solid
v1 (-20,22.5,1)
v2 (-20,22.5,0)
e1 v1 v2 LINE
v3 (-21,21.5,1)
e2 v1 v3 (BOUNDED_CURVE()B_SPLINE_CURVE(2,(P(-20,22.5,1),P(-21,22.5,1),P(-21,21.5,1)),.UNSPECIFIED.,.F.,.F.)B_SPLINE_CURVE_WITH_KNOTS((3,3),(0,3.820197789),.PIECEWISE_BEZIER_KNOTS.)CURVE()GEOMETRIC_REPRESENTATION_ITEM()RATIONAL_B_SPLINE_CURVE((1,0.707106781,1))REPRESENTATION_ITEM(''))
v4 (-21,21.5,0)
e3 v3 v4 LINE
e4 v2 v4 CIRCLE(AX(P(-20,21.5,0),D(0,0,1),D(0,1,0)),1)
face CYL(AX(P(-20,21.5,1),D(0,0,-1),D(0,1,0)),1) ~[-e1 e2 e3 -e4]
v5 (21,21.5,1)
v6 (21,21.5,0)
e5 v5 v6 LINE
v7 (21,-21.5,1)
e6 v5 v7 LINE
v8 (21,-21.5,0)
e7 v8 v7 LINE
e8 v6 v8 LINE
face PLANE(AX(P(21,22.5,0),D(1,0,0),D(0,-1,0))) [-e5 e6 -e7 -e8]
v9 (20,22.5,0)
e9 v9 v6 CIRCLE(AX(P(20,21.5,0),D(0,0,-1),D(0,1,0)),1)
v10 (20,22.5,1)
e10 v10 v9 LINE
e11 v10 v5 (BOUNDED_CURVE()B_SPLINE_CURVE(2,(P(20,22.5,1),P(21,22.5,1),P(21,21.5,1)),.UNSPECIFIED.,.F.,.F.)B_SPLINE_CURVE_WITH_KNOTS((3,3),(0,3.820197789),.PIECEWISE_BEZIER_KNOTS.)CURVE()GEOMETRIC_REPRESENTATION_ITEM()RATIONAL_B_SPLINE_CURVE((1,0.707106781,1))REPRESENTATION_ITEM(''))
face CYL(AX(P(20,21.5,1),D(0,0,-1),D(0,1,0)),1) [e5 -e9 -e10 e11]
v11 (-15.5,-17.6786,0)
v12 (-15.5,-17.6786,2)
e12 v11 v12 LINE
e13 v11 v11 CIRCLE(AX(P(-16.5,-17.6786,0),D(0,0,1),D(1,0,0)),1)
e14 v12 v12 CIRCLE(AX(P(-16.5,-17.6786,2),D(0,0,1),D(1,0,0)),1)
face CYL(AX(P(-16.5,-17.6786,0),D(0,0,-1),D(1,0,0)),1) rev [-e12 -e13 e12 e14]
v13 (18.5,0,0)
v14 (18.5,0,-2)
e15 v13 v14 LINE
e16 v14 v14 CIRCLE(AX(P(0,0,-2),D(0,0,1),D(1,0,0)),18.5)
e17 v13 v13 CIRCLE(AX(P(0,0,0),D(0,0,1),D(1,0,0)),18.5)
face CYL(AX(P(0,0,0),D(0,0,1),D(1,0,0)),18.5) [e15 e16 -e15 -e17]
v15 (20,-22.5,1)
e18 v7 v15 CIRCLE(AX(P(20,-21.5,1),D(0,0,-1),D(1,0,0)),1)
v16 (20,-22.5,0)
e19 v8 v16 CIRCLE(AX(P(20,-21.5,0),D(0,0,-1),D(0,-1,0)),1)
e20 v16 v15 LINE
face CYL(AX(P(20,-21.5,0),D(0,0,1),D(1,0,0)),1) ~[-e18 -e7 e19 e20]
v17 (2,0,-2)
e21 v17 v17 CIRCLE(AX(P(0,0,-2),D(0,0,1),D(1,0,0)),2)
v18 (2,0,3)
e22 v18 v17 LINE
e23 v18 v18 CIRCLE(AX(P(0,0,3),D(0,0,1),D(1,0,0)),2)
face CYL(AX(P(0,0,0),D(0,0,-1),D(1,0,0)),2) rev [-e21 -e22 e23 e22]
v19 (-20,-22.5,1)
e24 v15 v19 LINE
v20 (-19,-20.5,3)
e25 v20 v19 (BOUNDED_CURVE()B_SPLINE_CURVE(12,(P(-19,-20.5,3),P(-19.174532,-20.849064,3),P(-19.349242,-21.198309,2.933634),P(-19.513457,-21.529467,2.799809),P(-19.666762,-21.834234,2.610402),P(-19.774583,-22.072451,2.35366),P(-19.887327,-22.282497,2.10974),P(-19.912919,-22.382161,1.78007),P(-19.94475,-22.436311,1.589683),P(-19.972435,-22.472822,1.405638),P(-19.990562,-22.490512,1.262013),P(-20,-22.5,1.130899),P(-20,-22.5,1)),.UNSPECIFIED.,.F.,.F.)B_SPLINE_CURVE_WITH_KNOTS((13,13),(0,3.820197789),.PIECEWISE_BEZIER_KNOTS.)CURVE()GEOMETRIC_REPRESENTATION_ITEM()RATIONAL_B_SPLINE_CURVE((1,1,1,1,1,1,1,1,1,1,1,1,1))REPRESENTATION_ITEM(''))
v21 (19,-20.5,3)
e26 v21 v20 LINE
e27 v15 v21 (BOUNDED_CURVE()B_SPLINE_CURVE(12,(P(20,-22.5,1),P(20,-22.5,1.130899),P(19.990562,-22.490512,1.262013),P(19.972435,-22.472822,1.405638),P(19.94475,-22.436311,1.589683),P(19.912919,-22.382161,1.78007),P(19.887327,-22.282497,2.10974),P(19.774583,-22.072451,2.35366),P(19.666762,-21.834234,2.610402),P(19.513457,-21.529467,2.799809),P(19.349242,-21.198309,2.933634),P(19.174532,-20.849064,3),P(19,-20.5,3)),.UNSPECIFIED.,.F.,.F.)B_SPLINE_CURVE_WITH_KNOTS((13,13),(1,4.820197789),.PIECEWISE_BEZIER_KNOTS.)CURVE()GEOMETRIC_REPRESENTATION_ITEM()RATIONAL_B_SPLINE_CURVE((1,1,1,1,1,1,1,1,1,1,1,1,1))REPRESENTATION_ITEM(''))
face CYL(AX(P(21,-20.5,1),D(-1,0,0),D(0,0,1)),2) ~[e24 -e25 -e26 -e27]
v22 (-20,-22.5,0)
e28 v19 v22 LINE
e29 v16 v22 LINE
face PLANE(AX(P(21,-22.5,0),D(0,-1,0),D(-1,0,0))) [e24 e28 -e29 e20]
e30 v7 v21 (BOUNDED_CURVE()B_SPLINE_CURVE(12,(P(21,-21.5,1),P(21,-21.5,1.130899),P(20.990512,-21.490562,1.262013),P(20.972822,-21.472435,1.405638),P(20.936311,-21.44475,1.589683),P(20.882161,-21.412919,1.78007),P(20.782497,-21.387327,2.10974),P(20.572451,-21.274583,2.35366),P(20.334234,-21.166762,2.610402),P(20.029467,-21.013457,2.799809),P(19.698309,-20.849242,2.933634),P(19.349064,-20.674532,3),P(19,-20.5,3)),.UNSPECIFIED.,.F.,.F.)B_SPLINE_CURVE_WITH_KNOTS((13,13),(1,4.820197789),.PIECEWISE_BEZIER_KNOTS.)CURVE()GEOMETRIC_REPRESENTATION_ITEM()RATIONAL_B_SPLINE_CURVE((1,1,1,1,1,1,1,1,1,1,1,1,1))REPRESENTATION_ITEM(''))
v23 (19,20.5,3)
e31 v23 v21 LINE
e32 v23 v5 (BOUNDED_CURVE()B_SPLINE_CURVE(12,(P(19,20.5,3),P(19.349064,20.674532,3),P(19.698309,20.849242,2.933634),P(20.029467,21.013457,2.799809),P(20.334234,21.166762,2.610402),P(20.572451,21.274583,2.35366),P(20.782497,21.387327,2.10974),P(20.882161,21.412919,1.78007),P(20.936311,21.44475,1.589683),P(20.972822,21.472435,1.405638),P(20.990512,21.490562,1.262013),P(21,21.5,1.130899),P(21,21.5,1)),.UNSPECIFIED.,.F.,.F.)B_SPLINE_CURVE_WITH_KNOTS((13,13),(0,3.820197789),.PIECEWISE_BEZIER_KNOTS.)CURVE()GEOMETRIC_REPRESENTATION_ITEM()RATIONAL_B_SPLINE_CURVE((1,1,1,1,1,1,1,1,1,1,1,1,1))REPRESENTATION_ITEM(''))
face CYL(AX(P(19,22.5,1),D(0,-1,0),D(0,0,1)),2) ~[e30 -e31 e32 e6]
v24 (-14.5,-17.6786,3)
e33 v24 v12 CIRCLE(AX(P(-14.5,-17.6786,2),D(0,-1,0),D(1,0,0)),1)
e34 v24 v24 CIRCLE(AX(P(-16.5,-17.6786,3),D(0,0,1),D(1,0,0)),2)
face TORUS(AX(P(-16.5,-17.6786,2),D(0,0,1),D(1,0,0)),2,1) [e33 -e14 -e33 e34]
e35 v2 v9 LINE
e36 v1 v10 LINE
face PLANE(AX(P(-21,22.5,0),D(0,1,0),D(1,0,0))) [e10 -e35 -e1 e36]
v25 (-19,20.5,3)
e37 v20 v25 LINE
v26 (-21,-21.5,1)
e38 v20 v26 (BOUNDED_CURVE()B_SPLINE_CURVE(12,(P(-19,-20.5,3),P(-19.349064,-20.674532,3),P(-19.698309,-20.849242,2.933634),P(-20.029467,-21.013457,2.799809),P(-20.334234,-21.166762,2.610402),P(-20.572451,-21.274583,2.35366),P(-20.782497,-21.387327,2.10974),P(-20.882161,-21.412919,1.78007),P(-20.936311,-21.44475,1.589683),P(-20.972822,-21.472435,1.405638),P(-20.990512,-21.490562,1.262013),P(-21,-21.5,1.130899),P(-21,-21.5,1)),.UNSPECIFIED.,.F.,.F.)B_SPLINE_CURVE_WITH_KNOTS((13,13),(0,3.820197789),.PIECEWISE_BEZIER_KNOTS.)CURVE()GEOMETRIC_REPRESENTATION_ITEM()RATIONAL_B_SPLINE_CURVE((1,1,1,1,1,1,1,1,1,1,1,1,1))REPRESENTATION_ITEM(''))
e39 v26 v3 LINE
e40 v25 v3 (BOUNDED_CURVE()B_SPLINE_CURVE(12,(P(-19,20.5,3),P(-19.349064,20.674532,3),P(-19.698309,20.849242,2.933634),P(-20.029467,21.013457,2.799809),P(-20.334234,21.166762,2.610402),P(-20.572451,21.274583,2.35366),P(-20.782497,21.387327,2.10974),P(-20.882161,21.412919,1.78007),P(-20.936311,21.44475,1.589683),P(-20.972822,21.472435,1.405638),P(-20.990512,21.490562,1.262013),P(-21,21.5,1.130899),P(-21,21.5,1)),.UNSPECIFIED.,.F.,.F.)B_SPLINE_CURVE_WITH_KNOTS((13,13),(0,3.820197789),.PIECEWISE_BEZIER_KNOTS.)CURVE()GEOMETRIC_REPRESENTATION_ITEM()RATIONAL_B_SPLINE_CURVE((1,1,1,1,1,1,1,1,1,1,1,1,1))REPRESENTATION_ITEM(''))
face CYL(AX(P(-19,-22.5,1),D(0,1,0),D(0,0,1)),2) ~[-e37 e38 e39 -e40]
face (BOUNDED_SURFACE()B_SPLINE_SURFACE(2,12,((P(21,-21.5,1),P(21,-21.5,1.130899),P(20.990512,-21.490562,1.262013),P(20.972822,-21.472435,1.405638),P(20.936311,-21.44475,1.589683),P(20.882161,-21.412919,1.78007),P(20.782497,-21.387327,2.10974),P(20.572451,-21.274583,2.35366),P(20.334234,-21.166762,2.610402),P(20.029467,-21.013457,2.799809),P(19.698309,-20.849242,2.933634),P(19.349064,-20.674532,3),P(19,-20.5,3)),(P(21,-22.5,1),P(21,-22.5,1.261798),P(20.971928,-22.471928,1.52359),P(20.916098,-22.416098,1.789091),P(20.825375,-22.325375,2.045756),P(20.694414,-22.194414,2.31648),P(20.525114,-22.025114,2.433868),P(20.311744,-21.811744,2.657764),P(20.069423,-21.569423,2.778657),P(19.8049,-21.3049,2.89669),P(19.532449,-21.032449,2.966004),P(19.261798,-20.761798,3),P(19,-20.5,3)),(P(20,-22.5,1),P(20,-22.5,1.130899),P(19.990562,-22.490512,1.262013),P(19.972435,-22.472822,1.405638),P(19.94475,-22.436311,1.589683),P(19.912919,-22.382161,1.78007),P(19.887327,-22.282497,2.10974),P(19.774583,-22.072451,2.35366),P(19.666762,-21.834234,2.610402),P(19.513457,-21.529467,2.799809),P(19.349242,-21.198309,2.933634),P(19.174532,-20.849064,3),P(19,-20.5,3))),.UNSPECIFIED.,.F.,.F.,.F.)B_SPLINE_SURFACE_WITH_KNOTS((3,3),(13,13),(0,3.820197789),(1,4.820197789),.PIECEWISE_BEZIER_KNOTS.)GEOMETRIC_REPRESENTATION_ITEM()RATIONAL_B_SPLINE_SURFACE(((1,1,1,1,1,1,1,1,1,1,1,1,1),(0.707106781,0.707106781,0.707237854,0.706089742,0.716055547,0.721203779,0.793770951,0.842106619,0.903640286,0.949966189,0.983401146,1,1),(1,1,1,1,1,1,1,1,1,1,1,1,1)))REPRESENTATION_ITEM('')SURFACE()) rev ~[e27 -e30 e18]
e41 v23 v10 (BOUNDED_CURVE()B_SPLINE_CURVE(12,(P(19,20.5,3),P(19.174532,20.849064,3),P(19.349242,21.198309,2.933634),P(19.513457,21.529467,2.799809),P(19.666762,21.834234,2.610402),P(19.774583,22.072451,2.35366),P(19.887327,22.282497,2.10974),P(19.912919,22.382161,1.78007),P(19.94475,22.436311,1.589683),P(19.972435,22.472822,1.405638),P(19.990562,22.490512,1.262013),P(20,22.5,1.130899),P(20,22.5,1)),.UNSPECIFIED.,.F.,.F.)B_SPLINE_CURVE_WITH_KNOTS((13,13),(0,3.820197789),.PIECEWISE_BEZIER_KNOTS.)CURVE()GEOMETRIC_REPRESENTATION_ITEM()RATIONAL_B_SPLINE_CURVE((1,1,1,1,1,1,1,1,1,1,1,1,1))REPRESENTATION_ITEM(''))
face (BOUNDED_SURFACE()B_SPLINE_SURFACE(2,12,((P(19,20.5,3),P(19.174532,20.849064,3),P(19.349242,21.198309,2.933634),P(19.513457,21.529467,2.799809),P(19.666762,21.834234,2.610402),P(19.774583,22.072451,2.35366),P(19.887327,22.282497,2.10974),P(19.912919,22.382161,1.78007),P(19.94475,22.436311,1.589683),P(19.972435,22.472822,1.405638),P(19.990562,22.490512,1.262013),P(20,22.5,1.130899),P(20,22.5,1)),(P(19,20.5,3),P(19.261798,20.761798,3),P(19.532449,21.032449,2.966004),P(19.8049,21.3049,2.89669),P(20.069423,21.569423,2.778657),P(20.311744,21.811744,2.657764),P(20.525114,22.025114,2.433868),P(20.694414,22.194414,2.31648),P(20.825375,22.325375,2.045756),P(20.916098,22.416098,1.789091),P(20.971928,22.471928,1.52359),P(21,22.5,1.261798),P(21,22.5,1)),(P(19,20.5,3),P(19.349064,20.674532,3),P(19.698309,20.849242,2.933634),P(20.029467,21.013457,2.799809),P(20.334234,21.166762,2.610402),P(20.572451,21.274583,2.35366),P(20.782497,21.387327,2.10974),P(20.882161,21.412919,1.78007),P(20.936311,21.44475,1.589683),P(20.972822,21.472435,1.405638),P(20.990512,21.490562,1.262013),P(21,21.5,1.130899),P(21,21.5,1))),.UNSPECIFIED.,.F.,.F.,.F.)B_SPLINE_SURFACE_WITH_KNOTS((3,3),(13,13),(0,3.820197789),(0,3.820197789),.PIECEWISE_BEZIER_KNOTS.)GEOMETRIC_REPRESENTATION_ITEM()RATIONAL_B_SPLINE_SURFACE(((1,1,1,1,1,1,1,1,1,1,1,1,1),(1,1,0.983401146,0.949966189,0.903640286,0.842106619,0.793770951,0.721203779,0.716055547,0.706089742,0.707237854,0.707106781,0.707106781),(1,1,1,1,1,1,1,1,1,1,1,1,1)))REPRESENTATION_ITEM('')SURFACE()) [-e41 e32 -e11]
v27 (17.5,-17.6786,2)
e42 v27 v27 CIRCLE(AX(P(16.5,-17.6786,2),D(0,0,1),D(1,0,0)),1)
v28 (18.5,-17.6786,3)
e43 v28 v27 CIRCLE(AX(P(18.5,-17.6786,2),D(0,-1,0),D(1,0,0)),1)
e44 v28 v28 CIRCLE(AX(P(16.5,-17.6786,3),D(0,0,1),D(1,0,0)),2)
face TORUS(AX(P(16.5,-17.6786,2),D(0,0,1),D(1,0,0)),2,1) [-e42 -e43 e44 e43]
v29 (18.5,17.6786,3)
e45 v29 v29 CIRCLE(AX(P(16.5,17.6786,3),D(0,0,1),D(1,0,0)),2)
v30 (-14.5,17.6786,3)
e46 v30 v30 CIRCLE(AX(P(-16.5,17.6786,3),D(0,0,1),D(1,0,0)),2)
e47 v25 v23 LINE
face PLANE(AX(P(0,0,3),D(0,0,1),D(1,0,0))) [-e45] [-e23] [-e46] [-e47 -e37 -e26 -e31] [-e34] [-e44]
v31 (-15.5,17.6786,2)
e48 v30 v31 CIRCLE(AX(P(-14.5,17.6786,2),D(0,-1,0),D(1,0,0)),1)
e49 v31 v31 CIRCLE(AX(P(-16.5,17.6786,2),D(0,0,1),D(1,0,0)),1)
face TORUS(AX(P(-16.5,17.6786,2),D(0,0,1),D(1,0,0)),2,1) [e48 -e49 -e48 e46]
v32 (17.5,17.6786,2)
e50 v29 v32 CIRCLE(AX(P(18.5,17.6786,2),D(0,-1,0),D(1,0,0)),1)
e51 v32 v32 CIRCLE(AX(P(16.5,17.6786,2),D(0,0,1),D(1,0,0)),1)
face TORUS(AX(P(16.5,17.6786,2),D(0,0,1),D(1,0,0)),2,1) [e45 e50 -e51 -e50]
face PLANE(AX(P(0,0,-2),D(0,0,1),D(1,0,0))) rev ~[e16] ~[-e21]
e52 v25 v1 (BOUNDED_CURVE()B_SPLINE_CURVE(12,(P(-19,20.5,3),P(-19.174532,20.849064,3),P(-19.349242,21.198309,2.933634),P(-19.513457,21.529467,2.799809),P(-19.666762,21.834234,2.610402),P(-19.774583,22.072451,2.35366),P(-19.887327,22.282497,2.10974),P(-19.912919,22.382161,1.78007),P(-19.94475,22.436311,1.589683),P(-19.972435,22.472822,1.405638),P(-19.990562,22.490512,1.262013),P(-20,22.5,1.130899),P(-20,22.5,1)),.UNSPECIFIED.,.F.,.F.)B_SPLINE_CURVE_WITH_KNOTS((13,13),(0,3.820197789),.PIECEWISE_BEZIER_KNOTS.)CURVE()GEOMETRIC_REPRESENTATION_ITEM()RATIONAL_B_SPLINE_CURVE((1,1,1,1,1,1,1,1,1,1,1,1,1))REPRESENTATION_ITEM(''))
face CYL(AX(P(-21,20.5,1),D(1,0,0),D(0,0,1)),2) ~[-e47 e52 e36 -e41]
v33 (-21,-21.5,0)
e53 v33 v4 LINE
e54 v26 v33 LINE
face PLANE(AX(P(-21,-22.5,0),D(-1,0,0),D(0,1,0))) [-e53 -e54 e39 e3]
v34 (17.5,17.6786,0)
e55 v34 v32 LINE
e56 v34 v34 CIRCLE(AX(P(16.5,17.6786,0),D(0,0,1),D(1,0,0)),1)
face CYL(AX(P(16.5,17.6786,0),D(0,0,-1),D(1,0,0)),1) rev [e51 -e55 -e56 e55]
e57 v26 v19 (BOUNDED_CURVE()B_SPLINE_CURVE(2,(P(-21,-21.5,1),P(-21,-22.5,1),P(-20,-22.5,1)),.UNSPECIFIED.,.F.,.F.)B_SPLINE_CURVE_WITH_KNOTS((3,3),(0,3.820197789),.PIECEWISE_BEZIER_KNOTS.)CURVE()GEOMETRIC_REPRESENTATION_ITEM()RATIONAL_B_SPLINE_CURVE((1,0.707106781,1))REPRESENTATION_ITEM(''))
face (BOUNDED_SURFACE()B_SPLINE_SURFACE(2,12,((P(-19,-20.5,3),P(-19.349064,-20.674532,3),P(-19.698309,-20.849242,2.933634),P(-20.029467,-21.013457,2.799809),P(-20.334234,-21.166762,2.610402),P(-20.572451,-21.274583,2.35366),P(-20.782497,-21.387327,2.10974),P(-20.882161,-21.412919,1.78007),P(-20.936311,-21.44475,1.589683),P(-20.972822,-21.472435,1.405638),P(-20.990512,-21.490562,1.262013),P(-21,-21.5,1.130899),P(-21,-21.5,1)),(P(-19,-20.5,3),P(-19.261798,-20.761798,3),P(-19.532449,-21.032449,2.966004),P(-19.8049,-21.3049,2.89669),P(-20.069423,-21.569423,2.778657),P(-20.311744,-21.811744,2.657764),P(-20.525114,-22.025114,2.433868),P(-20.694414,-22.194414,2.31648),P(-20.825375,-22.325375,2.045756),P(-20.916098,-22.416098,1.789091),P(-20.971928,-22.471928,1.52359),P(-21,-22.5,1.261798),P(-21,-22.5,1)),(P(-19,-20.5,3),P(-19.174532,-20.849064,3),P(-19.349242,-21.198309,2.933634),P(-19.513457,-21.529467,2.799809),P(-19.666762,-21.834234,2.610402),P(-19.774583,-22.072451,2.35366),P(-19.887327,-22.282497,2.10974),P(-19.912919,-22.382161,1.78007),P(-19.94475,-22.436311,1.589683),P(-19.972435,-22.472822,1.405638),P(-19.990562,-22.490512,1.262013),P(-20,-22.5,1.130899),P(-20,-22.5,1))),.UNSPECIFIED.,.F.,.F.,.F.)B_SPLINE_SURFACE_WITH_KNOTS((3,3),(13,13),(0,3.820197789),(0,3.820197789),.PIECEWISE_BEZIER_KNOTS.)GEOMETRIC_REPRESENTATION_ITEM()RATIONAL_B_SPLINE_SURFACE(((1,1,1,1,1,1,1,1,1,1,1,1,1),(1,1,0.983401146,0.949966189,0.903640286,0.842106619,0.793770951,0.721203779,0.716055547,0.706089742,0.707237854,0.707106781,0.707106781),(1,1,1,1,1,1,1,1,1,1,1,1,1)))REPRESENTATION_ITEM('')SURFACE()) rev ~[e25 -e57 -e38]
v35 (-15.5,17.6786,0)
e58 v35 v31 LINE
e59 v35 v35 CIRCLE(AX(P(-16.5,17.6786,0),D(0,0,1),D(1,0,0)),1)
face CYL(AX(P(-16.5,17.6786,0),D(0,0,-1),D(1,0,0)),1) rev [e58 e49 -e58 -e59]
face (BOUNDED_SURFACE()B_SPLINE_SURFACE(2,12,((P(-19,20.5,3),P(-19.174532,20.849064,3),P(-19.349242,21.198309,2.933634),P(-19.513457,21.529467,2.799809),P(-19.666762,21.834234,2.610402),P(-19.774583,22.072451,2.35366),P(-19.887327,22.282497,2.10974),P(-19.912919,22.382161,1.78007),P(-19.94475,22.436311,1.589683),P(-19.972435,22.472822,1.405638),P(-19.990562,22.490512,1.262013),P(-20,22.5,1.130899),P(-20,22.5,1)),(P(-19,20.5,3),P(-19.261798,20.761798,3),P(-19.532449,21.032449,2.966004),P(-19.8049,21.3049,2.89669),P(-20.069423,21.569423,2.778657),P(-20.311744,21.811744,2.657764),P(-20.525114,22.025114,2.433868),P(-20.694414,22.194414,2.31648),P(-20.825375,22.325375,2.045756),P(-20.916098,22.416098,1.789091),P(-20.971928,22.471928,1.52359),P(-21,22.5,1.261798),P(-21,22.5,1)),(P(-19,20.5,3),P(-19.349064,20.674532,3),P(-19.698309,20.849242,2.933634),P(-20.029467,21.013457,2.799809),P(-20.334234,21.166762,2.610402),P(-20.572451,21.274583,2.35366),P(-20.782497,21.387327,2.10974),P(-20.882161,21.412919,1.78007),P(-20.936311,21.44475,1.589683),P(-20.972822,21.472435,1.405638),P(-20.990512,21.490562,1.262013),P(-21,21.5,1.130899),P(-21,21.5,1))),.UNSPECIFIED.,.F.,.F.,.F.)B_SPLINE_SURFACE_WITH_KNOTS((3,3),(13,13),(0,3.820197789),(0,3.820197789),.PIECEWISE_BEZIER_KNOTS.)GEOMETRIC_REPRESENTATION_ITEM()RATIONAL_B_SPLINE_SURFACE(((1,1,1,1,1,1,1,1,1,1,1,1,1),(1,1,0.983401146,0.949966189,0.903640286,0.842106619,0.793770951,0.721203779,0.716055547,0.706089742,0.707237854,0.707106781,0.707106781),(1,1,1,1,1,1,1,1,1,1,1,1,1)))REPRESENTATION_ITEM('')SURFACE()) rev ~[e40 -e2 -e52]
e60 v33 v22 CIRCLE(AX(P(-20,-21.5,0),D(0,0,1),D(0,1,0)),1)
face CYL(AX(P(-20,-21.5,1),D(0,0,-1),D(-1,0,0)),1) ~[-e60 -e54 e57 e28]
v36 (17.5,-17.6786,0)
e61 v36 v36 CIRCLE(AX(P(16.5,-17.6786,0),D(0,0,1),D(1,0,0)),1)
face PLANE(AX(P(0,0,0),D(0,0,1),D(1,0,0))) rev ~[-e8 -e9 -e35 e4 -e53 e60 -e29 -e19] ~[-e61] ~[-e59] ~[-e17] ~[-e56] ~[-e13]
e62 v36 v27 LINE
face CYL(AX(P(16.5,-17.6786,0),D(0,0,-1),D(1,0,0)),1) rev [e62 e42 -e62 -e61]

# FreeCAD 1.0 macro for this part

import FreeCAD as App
import Part
import Sketcher

V = App.Vector
Q = App.Units.Quantity


def edges_at(feature, points):
    """Names of the edges that pass closest to the given points."""
    edges = feature.Shape.Edges
    near = lambda p: min(range(len(edges)), key=lambda i: edges[i].distToShape(Part.Vertex(*p))[0])
    return sorted({f"Edge{near(p) + 1}" for p in points})


def add_polygon(sketch, points):
    """Adds a closed chain of lines whose ends are joined by coincident constraints."""
    first, n = sketch.GeometryCount, len(points)
    for a, b in zip(points, points[1:] + points[:1]):
        sketch.addGeometry(Part.LineSegment(App.Vector(*a, 0), App.Vector(*b, 0)), False)
    for i in range(n):
        sketch.addConstraint(Sketcher.Constraint("Coincident", first + i, 2, first + (i + 1) % n, 1))

doc = App.newDocument("Part")
body = doc.addObject("PartDesign::Body", "Body")

sketch1 = body.newObject("Sketcher::SketchObject", "Sketch")
sketch1.AttachmentSupport = (doc.getObject("XY_Plane"), [""])
sketch1.MapMode = "FlatFace"
add_polygon(sketch1, [(21, 22.5), (-21, 22.5), (-21, -22.5), (21, -22.5)])
sketch1.addGeometry(Part.Circle(V(-16.5, -17.7, 0), V(0, 0, 1), 1), False)
sketch1.addGeometry(Part.Circle(V(16.5, -17.7, 0), V(0, 0, 1), 1), False)
sketch1.addGeometry(Part.Circle(V(-16.5, 17.7, 0), V(0, 0, 1), 1), False)
sketch1.addGeometry(Part.Circle(V(0, 0, 0), V(0, 0, 1), 18.5), False)
sketch1.addGeometry(Part.Circle(V(16.5, 17.7, 0), V(0, 0, 1), 1), False)
sketch1.addConstraint(Sketcher.Constraint("Horizontal", 0))
sketch1.addConstraint(Sketcher.Constraint("Vertical", 1))
sketch1.addConstraint(Sketcher.Constraint("Horizontal", 2))
sketch1.addConstraint(Sketcher.Constraint("Vertical", 3))
sketch1.addConstraint(Sketcher.Constraint("Coincident", 7, 3, -1, 1))
sketch1.addConstraint(Sketcher.Constraint("Equal", 4, 5))
sketch1.addConstraint(Sketcher.Constraint("Equal", 5, 6))
sketch1.addConstraint(Sketcher.Constraint("Equal", 6, 8))
sketch1.addConstraint(Sketcher.Constraint("Symmetric", 5, 3, 6, 3, -1, 1))
sketch1.addConstraint(Sketcher.Constraint("Symmetric", 4, 3, 8, 3, -1, 1))
sketch1.addConstraint(Sketcher.Constraint("Symmetric", 0, 2, 2, 2, -1, 1))
sketch1.addConstraint(Sketcher.Constraint("Symmetric", 4, 3, 5, 3, -2))
sketch1.addConstraint(Sketcher.Constraint("Diameter", 4, Q("2 mm")))
sketch1.addConstraint(Sketcher.Constraint("Diameter", 7, Q("37 mm")))
sketch1.addConstraint(Sketcher.Constraint("DistanceX", 0, 2, 0, 1, Q("42 mm")))
sketch1.addConstraint(Sketcher.Constraint("DistanceY", 1, 2, 1, 1, Q("45 mm")))
sketch1.addConstraint(Sketcher.Constraint("DistanceX", 0, 2, 6, 3, Q("4.5 mm")))
sketch1.addConstraint(Sketcher.Constraint("DistanceY", 4, 3, -1, 1, Q("17.6786 mm")))
pad1 = body.newObject("PartDesign::Pad", "Pad")
pad1.Profile = sketch1
pad1.Length = 3

sketch2 = body.newObject("Sketcher::SketchObject", "Sketch001")
sketch2.AttachmentSupport = (doc.getObject("XY_Plane"), [""])
sketch2.MapMode = "FlatFace"
sketch2.addGeometry(Part.Circle(V(0, 0, 0), V(0, 0, 1), 18.5), False)
sketch2.addGeometry(Part.Circle(V(0, 0, 0), V(0, 0, 1), 2), False)
sketch2.addConstraint(Sketcher.Constraint("Coincident", 0, 3, -1, 1))
sketch2.addConstraint(Sketcher.Constraint("Coincident", 1, 3, -1, 1))
sketch2.addConstraint(Sketcher.Constraint("Diameter", 0, Q("37 mm")))
sketch2.addConstraint(Sketcher.Constraint("Diameter", 1, Q("4 mm")))
pad2 = body.newObject("PartDesign::Pad", "Pad001")
pad2.Profile = sketch2
pad2.Type = "TwoLengths"
pad2.Length = 3
pad2.Length2 = 2
doc.recompute()

fillet = body.newObject("PartDesign::Fillet", "Fillet")
fillet.Base = (pad2, edges_at(pad2, [
    (15.5, 17.679, 3),
    (-17.5, 17.679, 3),
    (-17.5, -17.679, 3),
    (15.5, -17.679, 3),
]))
fillet.Radius = 1
doc.recompute()

fillet2 = body.newObject("PartDesign::Fillet", "Fillet001")
fillet2.Base = (fillet, edges_at(fillet, [
    (0, 22.5, 3),
    (21, 0, 3),
    (0, -22.5, 3),
    (-21, 0, 3),
]))
fillet2.Radius = 2
doc.recompute()

fillet3 = body.newObject("PartDesign::Fillet", "Fillet002")
fillet3.Base = (fillet2, edges_at(fillet2, [
    (-20.414, 21.914, 2.414),
    (-21, 22.5, 0.5),
    (20.414, 21.914, 2.414),
    (21, 22.5, 0.5),
    (21, -22.5, 0.5),
    (20.414, -21.914, 2.414),
    (-20.414, -21.914, 2.414),
    (-21, -22.5, 0.5),
]))
fillet3.Radius = 1

doc.recompute()
